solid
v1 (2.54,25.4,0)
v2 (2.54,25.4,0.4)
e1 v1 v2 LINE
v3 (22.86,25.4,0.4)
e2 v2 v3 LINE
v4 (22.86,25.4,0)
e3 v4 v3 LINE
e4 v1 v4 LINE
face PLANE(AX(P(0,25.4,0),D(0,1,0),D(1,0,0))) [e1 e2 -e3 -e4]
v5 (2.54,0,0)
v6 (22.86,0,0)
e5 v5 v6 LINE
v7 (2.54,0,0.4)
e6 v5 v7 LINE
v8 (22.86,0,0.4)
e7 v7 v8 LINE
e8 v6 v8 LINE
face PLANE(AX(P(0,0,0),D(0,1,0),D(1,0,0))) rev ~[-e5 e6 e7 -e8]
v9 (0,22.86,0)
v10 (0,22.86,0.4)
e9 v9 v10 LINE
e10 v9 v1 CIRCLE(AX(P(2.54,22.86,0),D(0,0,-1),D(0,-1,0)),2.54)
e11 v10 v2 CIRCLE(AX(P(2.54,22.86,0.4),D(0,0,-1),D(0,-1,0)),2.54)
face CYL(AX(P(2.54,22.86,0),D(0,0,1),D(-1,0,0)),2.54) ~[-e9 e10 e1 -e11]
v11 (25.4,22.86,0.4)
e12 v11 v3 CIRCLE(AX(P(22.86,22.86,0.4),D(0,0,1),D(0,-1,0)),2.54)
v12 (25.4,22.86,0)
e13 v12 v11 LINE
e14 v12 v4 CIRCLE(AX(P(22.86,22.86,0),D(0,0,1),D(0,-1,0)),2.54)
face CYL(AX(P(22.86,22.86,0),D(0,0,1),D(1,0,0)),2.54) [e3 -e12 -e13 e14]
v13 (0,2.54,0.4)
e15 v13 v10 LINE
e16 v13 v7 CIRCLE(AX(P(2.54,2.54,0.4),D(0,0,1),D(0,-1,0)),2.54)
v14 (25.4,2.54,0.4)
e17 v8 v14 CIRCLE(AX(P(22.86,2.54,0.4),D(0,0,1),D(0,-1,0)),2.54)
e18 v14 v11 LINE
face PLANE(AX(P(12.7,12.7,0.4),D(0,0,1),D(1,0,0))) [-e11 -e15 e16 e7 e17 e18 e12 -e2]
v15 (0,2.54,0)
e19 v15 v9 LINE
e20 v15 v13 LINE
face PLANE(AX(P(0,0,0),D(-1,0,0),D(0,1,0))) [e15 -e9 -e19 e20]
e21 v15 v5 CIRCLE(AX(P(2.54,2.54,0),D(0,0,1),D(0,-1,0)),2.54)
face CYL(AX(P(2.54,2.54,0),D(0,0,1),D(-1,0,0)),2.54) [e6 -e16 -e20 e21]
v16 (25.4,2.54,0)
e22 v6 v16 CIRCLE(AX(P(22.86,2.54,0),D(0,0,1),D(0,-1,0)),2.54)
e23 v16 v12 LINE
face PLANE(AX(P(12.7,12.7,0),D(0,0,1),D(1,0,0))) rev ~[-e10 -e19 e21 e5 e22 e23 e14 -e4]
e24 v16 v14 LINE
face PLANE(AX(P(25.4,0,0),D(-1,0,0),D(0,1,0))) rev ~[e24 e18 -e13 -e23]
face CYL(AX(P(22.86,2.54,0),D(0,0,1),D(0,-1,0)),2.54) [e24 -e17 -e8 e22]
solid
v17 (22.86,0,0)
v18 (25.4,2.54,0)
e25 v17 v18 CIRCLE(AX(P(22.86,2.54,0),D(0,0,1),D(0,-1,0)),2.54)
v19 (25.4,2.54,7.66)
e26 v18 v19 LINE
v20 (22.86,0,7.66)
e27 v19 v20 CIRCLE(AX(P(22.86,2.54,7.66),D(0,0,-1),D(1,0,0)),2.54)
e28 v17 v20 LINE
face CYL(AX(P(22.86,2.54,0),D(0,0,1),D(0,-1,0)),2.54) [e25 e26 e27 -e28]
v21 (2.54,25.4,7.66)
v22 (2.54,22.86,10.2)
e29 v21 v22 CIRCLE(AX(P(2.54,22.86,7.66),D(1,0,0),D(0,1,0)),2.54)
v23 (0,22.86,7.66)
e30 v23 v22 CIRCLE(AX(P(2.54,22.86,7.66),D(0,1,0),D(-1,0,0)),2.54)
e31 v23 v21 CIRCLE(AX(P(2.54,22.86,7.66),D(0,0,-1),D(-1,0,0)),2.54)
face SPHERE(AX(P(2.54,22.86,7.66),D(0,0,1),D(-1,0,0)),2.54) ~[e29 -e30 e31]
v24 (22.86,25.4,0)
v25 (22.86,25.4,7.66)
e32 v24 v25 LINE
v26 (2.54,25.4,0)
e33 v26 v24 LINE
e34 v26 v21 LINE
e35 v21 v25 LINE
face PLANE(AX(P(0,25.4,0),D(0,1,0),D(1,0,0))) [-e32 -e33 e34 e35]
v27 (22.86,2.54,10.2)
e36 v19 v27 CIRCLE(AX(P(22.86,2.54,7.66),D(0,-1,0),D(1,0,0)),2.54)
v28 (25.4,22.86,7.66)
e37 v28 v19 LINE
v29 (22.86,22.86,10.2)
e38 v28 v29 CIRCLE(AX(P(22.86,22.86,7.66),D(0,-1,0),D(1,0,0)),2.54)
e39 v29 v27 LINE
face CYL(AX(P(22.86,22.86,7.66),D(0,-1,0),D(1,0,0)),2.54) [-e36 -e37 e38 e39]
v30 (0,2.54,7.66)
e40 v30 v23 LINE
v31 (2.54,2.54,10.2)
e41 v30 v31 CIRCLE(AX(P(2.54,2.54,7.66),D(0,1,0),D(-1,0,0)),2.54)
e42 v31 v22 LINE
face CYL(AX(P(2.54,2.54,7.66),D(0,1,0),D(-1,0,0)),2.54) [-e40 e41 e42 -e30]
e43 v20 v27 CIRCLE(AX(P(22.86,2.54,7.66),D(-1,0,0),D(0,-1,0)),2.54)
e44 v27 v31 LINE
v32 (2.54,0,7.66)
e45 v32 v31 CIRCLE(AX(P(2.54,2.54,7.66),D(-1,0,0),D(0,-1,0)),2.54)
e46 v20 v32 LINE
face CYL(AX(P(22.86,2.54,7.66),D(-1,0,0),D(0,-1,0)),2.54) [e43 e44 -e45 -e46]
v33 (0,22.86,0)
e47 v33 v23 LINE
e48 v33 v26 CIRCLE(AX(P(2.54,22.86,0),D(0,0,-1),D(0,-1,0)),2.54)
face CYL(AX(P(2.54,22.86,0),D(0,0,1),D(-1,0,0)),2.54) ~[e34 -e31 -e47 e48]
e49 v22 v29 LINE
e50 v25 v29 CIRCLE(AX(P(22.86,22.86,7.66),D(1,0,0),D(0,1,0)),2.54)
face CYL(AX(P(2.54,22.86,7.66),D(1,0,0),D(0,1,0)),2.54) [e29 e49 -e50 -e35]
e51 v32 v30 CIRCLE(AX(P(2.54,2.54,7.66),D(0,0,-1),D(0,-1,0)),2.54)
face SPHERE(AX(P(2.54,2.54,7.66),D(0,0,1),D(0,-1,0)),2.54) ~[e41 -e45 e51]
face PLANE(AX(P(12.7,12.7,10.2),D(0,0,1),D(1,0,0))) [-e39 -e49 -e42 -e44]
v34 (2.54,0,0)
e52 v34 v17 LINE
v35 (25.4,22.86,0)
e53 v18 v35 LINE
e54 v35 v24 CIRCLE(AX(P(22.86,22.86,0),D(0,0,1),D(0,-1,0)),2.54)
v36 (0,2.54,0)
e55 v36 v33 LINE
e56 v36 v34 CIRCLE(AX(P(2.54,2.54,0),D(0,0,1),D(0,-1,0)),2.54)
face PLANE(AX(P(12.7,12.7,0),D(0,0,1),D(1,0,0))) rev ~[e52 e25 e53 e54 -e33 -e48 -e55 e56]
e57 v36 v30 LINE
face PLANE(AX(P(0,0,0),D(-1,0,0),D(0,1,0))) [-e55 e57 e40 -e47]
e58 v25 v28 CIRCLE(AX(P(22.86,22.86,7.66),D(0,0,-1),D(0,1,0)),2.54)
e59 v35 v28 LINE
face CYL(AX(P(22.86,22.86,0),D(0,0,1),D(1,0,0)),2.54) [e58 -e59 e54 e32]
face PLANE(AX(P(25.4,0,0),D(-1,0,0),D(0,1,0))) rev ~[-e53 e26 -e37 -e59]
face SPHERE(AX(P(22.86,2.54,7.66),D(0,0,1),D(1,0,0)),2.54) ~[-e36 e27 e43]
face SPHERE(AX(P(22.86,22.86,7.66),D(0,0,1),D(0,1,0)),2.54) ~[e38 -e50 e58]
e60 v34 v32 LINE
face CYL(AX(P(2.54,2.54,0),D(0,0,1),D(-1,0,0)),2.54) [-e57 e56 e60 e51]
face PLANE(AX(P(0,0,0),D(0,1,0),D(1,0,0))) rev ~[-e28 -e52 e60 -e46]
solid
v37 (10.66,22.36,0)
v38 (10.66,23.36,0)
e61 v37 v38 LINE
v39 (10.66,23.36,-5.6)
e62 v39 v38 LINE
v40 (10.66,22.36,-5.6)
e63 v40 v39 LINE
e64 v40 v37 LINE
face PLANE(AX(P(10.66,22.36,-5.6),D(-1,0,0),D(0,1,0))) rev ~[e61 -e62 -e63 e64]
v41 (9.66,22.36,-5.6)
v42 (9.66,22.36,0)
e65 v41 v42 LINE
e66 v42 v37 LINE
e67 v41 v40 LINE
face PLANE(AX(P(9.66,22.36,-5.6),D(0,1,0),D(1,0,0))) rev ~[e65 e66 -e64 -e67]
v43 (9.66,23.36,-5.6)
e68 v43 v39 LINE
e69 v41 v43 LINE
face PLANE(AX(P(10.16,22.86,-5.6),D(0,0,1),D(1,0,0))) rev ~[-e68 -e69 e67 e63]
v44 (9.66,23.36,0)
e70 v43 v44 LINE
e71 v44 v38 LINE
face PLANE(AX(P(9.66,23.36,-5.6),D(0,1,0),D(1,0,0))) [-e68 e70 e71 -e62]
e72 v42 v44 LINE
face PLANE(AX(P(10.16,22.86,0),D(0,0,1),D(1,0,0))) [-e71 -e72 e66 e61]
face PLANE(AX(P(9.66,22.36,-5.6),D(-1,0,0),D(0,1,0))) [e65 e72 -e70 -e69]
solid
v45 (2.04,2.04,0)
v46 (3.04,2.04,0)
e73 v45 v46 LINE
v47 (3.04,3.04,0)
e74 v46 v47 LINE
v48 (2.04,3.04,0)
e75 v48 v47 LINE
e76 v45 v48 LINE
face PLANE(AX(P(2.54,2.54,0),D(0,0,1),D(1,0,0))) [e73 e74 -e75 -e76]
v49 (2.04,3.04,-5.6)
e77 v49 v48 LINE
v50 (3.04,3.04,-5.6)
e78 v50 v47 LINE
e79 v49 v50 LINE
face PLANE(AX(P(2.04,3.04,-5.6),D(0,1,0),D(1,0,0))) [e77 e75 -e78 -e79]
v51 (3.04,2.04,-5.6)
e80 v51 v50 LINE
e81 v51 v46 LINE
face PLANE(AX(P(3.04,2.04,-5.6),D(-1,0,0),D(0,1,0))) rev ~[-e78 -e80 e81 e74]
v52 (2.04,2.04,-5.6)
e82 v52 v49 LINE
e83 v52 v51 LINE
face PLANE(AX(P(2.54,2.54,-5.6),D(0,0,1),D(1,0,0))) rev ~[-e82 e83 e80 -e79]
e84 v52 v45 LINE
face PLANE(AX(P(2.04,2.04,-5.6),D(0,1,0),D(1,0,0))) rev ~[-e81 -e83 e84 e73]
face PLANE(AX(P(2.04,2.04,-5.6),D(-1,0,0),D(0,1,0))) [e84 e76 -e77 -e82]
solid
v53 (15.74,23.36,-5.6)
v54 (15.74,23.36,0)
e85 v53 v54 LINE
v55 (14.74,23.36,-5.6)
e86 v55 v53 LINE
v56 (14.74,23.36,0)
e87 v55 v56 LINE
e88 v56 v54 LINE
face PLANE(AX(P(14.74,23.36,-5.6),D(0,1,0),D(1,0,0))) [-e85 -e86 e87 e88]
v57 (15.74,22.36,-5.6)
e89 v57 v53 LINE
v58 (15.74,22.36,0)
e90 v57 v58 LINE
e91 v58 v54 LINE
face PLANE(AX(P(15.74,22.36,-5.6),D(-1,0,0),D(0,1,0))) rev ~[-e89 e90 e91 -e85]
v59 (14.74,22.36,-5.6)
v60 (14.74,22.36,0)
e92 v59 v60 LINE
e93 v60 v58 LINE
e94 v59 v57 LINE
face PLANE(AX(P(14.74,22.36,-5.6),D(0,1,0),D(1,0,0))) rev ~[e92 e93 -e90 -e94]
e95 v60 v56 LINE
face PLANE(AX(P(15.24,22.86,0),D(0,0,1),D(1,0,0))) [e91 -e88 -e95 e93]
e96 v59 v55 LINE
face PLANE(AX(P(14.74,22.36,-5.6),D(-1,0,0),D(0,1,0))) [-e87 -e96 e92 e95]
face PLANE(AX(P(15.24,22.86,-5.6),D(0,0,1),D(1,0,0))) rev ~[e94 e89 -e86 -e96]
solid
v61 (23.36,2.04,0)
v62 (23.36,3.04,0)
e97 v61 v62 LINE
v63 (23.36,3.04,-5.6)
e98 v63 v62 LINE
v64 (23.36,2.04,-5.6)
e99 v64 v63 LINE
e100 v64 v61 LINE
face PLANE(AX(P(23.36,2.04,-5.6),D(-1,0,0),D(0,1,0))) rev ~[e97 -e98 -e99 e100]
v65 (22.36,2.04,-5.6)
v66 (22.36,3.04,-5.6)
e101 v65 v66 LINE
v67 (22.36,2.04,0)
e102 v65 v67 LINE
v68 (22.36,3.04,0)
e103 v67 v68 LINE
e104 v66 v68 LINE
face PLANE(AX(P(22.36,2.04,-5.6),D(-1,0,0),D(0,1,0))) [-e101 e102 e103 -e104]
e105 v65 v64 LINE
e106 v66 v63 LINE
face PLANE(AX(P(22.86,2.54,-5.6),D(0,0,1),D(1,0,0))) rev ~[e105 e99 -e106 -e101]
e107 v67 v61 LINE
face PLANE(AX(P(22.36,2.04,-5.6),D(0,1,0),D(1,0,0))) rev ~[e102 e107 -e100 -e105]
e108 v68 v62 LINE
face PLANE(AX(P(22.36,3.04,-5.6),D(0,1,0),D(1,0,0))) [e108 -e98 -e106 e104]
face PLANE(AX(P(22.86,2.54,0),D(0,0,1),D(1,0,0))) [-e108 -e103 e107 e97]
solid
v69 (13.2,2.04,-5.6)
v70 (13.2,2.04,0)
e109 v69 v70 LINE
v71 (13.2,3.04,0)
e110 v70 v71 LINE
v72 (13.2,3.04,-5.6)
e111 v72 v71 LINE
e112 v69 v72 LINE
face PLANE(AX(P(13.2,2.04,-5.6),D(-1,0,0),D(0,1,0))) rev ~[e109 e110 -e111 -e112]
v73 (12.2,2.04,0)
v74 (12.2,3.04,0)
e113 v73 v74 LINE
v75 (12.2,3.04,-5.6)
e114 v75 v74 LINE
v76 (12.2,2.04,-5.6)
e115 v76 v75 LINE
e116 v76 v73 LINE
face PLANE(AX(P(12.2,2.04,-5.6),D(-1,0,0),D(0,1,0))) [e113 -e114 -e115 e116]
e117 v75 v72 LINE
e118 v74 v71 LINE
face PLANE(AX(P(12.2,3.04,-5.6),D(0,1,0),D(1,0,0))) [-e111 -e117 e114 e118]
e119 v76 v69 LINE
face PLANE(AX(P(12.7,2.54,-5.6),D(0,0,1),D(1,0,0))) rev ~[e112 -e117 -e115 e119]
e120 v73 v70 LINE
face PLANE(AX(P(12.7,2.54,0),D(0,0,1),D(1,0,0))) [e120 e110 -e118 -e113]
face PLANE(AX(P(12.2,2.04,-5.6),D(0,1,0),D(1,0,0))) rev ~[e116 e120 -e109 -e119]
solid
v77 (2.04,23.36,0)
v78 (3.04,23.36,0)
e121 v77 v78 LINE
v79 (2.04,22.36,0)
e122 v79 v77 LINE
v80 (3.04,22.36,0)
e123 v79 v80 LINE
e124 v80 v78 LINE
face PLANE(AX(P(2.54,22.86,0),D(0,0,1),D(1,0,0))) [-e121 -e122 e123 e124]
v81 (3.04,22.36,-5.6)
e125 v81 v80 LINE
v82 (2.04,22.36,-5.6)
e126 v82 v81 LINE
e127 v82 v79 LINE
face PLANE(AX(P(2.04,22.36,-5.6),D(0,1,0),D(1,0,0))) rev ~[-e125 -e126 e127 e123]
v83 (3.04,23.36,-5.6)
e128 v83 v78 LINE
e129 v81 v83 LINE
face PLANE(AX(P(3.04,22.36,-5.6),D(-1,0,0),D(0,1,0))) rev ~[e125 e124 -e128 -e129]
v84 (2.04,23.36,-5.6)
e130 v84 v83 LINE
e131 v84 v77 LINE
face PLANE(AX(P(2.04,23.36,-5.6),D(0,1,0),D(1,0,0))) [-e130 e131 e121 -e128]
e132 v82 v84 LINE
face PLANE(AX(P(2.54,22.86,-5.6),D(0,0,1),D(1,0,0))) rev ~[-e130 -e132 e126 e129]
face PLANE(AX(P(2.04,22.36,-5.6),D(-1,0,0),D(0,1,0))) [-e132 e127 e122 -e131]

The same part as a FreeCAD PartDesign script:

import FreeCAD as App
import Part
import Sketcher
from FreeCAD import Vector


def edges_at(feature, points):
    """Names of the edges that pass closest to the given points."""
    edges = feature.Shape.Edges
    near = lambda p: min(range(len(edges)), key=lambda i: edges[i].distToShape(Part.Vertex(*p))[0])
    return sorted({f"Edge{near(p) + 1}" for p in points})


def add_polygon(sketch, points):
    """Adds a closed chain of lines whose ends are joined by coincident constraints."""
    first, n = sketch.GeometryCount, len(points)
    for a, b in zip(points, points[1:] + points[:1]):
        sketch.addGeometry(Part.LineSegment(App.Vector(*a, 0), App.Vector(*b, 0)), False)
    for i in range(n):
        sketch.addConstraint(Sketcher.Constraint("Coincident", first + i, 2, first + (i + 1) % n, 1))

doc = App.newDocument("Part")
body = doc.addObject("PartDesign::Body", "Body")

# Sketch on XY plane
sketch1 = body.newObject("Sketcher::SketchObject", "Sketch")
sketch1.AttachmentSupport = (doc.getObject("XY_Plane"), [""])
sketch1.MapMode = "FlatFace"
add_polygon(sketch1, [(0, 25), (0, 0), (25, 0), (25, 25)])  # lines 0-3
sketch1.addConstraint([
    Sketcher.Constraint("Vertical", 0),
    Sketcher.Constraint("Horizontal", 1),
    Sketcher.Constraint("Vertical", 2),
    Sketcher.Constraint("Horizontal", 3),
    Sketcher.Constraint("Coincident", 0, 2, -1, 1),
    Sketcher.Constraint("Equal", 3, 0),
    Sketcher.Constraint("DistanceX", 1, 1, 1, 2, 25.4),
])
pad1 = body.newObject("PartDesign::Pad", "Pad")
pad1.Profile = sketch1
pad1.Length = 0.4
doc.recompute()

fillet = body.newObject("PartDesign::Fillet", "Fillet")
fillet.Base = (pad1, edges_at(pad1, [
    (0, 0, 0.2),
    (0, 25.4, 0.2),
    (25.4, 0, 0.2),
    (25.4, 25.4, 0.2),
]))
fillet.Radius = 2.54
body2 = doc.addObject("PartDesign::Body", "Body001")

# Sketch on XY plane
sketch2 = body2.newObject("Sketcher::SketchObject", "Sketch001")
sketch2.AttachmentSupport = (doc.getObject("XY_Plane001"), [""])
sketch2.MapMode = "FlatFace"
sketch2.AttachmentOffset = App.Placement(Vector(0, 0, -5.6), App.Rotation())
add_polygon(sketch2, [(12.2, 3), (12.2, 2), (13.2, 2), (13.2, 3)])  # lines 0-3
sketch2.addConstraint([
    Sketcher.Constraint("Vertical", 0),
    Sketcher.Constraint("Horizontal", 1),
    Sketcher.Constraint("Vertical", 2),
    Sketcher.Constraint("Horizontal", 3),
    Sketcher.Constraint("Equal", 3, 0),
    Sketcher.Constraint("DistanceX", 1, 1, 1, 2, 1.0),
    Sketcher.Constraint("DistanceX", -1, 1, 0, 2, 12.2),
    Sketcher.Constraint("DistanceY", -1, 1, 0, 2, 2.04),
])
pad2 = body2.newObject("PartDesign::Pad", "Pad001")
pad2.Profile = sketch2
pad2.Length = 5.6
body3 = doc.addObject("PartDesign::Body", "Body002")

# Sketch on XY plane
sketch3 = body3.newObject("Sketcher::SketchObject", "Sketch002")
sketch3.AttachmentSupport = (doc.getObject("XY_Plane002"), [""])
sketch3.MapMode = "FlatFace"
sketch3.AttachmentOffset = App.Placement(Vector(0, 0, -5.6), App.Rotation())
add_polygon(sketch3, [(14.7, 23.4), (14.7, 22.4), (15.7, 22.4), (15.7, 23.4)])  # lines 0-3
sketch3.addConstraint([
    Sketcher.Constraint("Vertical", 0),
    Sketcher.Constraint("Horizontal", 1),
    Sketcher.Constraint("Vertical", 2),
    Sketcher.Constraint("Horizontal", 3),
    Sketcher.Constraint("Equal", 3, 0),
    Sketcher.Constraint("DistanceX", 1, 1, 1, 2, 1.0),
    Sketcher.Constraint("DistanceX", -1, 1, 0, 2, 14.74),
    Sketcher.Constraint("DistanceY", -1, 1, 0, 2, 22.36),
])
pad3 = body3.newObject("PartDesign::Pad", "Pad002")
pad3.Profile = sketch3
pad3.Length = 5.6
body4 = doc.addObject("PartDesign::Body", "Body003")

# Sketch on XY plane
sketch4 = body4.newObject("Sketcher::SketchObject", "Sketch003")
sketch4.AttachmentSupport = (doc.getObject("XY_Plane003"), [""])
sketch4.MapMode = "FlatFace"
sketch4.AttachmentOffset = App.Placement(Vector(0, 0, -5.6), App.Rotation())
add_polygon(sketch4, [(9.7, 23.4), (9.7, 22.4), (10.7, 22.4), (10.7, 23.4)])  # lines 0-3
sketch4.addConstraint([
    Sketcher.Constraint("Vertical", 0),
    Sketcher.Constraint("Horizontal", 1),
    Sketcher.Constraint("Vertical", 2),
    Sketcher.Constraint("Horizontal", 3),
    Sketcher.Constraint("Equal", 3, 0),
    Sketcher.Constraint("DistanceX", 1, 1, 1, 2, 1.0),
    Sketcher.Constraint("DistanceX", -1, 1, 0, 2, 9.66),
    Sketcher.Constraint("DistanceY", -1, 1, 0, 2, 22.36),
])
pad4 = body4.newObject("PartDesign::Pad", "Pad003")
pad4.Profile = sketch4
pad4.Length = 5.6
body5 = doc.addObject("PartDesign::Body", "Body004")

# Sketch on XY plane
sketch5 = body5.newObject("Sketcher::SketchObject", "Sketch004")
sketch5.AttachmentSupport = (doc.getObject("XY_Plane004"), [""])
sketch5.MapMode = "FlatFace"
sketch5.AttachmentOffset = App.Placement(Vector(0, 0, -5.6), App.Rotation())
add_polygon(sketch5, [(2, 23.4), (2, 22.4), (3, 22.4), (3, 23.4)])  # lines 0-3
sketch5.addConstraint([
    Sketcher.Constraint("Vertical", 0),
    Sketcher.Constraint("Horizontal", 1),
    Sketcher.Constraint("Vertical", 2),
    Sketcher.Constraint("Horizontal", 3),
    Sketcher.Constraint("Equal", 3, 0),
    Sketcher.Constraint("DistanceX", 1, 1, 1, 2, 1.0),
    Sketcher.Constraint("DistanceX", -1, 1, 0, 2, 2.04),
    Sketcher.Constraint("DistanceY", -1, 1, 0, 2, 22.36),
])
pad5 = body5.newObject("PartDesign::Pad", "Pad004")
pad5.Profile = sketch5
pad5.Length = 5.6
body6 = doc.addObject("PartDesign::Body", "Body005")

# Sketch on XY plane
sketch6 = body6.newObject("Sketcher::SketchObject", "Sketch005")
sketch6.AttachmentSupport = (doc.getObject("XY_Plane005"), [""])
sketch6.MapMode = "FlatFace"
sketch6.AttachmentOffset = App.Placement(Vector(0, 0, -5.6), App.Rotation())
add_polygon(sketch6, [(22.4, 3), (22.4, 2), (23.4, 2), (23.4, 3)])  # lines 0-3
sketch6.addConstraint([
    Sketcher.Constraint("Vertical", 0),
    Sketcher.Constraint("Horizontal", 1),
    Sketcher.Constraint("Vertical", 2),
    Sketcher.Constraint("Horizontal", 3),
    Sketcher.Constraint("Equal", 3, 0),
    Sketcher.Constraint("DistanceX", 1, 1, 1, 2, 1.0),
    Sketcher.Constraint("DistanceX", -1, 1, 0, 2, 22.36),
    Sketcher.Constraint("DistanceY", -1, 1, 0, 2, 2.04),
])
pad6 = body6.newObject("PartDesign::Pad", "Pad005")
pad6.Profile = sketch6
pad6.Length = 5.6
body7 = doc.addObject("PartDesign::Body", "Body006")
body7.AllowCompound = True

# Sketch on XY plane
sketch7 = body7.newObject("Sketcher::SketchObject", "Sketch006")
sketch7.AttachmentSupport = (doc.getObject("XY_Plane006"), [""])
sketch7.MapMode = "FlatFace"
sketch7.AttachmentOffset = App.Placement(Vector(0, 0, -5.6), App.Rotation())
add_polygon(sketch7, [(2, 3), (2, 2), (3, 2), (3, 3)])  # lines 0-3
sketch7.addConstraint([
    Sketcher.Constraint("Vertical", 0),
    Sketcher.Constraint("Horizontal", 1),
    Sketcher.Constraint("Vertical", 2),
    Sketcher.Constraint("Horizontal", 3),
    Sketcher.Constraint("Equal", 3, 0),
    Sketcher.Constraint("DistanceX", 1, 1, 1, 2, 1.0),
    Sketcher.Constraint("DistanceX", -1, 1, 0, 2, 2.04),
    Sketcher.Constraint("DistanceY", -1, 1, 0, 2, 2.04),
])
pad7 = body7.newObject("PartDesign::Pad", "Pad006")
pad7.Profile = sketch7
pad7.Length = 5.6
doc.recompute()

boolean = body7.newObject("PartDesign::Boolean", "Boolean")
boolean.Type = "Fuse"
boolean.addObjects([body2])
doc.recompute()

boolean2 = body7.newObject("PartDesign::Boolean", "Boolean001")
boolean2.Type = "Fuse"
boolean2.addObjects([body3])
doc.recompute()

boolean3 = body7.newObject("PartDesign::Boolean", "Boolean002")
boolean3.Type = "Fuse"
boolean3.addObjects([body4])
doc.recompute()

boolean4 = body7.newObject("PartDesign::Boolean", "Boolean003")
boolean4.Type = "Fuse"
boolean4.addObjects([body5])
doc.recompute()

boolean5 = body7.newObject("PartDesign::Boolean", "Boolean004")
boolean5.Type = "Fuse"
boolean5.addObjects([body6])
body8 = doc.addObject("PartDesign::Body", "Body007")

# Sketch on XY plane
sketch8 = body8.newObject("Sketcher::SketchObject", "Sketch007")
sketch8.AttachmentSupport = (doc.getObject("XY_Plane007"), [""])
sketch8.MapMode = "FlatFace"
add_polygon(sketch8, [(0, 25), (0, 0), (25, 0), (25, 25)])  # lines 0-3
sketch8.addConstraint([
    Sketcher.Constraint("Vertical", 0),
    Sketcher.Constraint("Horizontal", 1),
    Sketcher.Constraint("Vertical", 2),
    Sketcher.Constraint("Horizontal", 3),
    Sketcher.Constraint("Coincident", 0, 2, -1, 1),
    Sketcher.Constraint("Equal", 3, 0),
    Sketcher.Constraint("DistanceX", 1, 1, 1, 2, 25.4),
])
pad8 = body8.newObject("PartDesign::Pad", "Pad007")
pad8.Profile = sketch8
pad8.Length = 10.2
doc.recompute()

fillet2 = body8.newObject("PartDesign::Fillet", "Fillet001")
fillet2.Base = (pad8, edges_at(pad8, [
    (0, 0, 5.1),
    (0, 25.4, 5.1),
    (25.4, 0, 5.1),
    (25.4, 25.4, 5.1),
]))
fillet2.Radius = 2.54
doc.recompute()

fillet3 = body8.newObject("PartDesign::Fillet", "Fillet002")
fillet3.Base = (fillet2, edges_at(fillet2, [
    (0, 12.7, 10.2),
    (0.744, 0.744, 10.2),
    (0.744, 24.656, 10.2),
    (12.7, 0, 10.2),
    (12.7, 25.4, 10.2),
    (24.656, 0.744, 10.2),
    (24.656, 24.656, 10.2),
    (25.4, 12.7, 10.2),
]))
fillet3.Radius = 2.54

doc.recompute()
